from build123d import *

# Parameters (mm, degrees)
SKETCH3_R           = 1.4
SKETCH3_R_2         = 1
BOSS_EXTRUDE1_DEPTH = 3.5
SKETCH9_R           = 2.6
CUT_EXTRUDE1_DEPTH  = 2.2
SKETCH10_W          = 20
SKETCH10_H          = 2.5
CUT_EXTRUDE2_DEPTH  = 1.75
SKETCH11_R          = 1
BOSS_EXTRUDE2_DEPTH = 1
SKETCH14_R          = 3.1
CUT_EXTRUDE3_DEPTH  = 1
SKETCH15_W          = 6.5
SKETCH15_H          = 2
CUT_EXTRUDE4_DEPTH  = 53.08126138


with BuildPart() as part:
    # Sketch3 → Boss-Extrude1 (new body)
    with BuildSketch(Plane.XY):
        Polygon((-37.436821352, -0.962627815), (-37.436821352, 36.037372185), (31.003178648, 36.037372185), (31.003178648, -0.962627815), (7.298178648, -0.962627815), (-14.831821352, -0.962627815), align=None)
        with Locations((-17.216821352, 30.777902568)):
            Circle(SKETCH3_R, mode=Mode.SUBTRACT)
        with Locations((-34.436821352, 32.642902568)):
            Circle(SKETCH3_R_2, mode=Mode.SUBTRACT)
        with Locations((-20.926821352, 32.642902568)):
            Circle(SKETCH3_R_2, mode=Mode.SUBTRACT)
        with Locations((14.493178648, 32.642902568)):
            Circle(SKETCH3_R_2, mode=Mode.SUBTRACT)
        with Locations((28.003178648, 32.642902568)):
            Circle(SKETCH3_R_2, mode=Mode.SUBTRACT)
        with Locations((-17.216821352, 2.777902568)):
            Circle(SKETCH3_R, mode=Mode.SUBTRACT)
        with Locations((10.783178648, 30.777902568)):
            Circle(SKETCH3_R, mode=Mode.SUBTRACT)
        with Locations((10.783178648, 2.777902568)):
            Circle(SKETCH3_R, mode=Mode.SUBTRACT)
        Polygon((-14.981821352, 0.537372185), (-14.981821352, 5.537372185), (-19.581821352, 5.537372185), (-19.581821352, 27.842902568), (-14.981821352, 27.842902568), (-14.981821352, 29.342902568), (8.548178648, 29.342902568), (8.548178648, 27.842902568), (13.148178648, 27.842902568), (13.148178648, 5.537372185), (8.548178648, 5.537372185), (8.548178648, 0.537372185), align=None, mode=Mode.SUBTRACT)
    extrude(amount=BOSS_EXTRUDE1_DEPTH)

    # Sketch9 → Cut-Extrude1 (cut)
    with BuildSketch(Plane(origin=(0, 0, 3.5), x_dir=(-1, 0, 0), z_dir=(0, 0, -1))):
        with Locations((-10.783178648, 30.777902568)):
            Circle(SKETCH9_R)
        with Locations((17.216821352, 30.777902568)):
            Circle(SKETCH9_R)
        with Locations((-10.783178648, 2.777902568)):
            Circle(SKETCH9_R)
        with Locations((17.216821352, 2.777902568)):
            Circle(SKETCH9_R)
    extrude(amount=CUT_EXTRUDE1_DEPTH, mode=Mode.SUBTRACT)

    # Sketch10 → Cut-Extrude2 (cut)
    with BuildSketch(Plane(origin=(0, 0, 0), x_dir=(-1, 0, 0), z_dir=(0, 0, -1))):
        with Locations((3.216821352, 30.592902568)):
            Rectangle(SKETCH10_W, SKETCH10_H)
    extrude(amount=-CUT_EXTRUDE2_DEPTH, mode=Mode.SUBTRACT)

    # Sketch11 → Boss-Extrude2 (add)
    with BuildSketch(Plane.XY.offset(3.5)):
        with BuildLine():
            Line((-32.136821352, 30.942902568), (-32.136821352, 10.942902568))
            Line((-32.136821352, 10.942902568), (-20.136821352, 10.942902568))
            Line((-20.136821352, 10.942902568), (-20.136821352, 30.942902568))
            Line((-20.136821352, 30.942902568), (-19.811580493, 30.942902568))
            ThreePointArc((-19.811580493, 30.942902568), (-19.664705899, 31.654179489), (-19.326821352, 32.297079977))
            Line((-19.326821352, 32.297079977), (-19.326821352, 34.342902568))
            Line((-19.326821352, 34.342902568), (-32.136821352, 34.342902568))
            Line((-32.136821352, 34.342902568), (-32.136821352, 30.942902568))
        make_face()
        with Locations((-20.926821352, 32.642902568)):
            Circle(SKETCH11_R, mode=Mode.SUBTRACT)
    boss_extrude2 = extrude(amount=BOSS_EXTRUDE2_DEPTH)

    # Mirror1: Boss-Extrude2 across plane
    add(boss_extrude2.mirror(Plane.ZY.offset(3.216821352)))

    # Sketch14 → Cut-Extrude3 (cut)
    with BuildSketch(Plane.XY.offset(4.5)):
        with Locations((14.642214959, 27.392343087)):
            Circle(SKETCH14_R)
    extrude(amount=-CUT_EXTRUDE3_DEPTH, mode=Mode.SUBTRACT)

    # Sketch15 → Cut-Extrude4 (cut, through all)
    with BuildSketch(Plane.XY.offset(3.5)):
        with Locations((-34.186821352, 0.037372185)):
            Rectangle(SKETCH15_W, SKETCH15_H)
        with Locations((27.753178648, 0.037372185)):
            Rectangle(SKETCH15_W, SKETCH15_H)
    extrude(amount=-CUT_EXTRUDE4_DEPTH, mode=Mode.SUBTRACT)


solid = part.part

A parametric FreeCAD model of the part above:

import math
import FreeCAD as App
import Part
import Sketcher
from FreeCAD import Vector
Q = App.Units.Quantity

doc = App.newDocument("Part")
body = doc.addObject("PartDesign::Body", "Body")

# Sketch on XY plane
sketch1 = body.newObject("Sketcher::SketchObject", "Sketch")
sketch1.AttachmentSupport = (doc.getObject("XY_Plane"), [""])
sketch1.MapMode = "FlatFace"
sketch1.addGeometry([
    Part.LineSegment(Vector(-37.4, 36, 0), Vector(-37.4, -1, 0)),  # 0
    Part.LineSegment(Vector(-37.4, -1, 0), Vector(31, -1, 0)),  # 1
    Part.LineSegment(Vector(31, -1, 0), Vector(31, 36, 0)),  # 2
    Part.LineSegment(Vector(31, 36, 0), Vector(-37.4, 36, 0)),  # 3
    Part.Circle(Vector(10.8, 2.8, 0), Vector(0, 0, 1), 1.4),  # 4
    Part.LineSegment(Vector(-15, 0.5, 0), Vector(-15, 5.5, 0)),  # 5
    Part.LineSegment(Vector(-15, 5.5, 0), Vector(-19.6, 5.5, 0)),  # 6
    Part.LineSegment(Vector(-19.6, 5.5, 0), Vector(-19.6, 27.8, 0)),  # 7
    Part.LineSegment(Vector(-19.6, 27.8, 0), Vector(-15, 27.8, 0)),  # 8
    Part.LineSegment(Vector(-15, 27.8, 0), Vector(-15, 29.3, 0)),  # 9
    Part.LineSegment(Vector(-15, 29.3, 0), Vector(8.5, 29.3, 0)),  # 10
    Part.LineSegment(Vector(8.5, 29.3, 0), Vector(8.5, 27.8, 0)),  # 11
    Part.LineSegment(Vector(8.5, 27.8, 0), Vector(13.1, 27.8, 0)),  # 12
    Part.LineSegment(Vector(13.1, 27.8, 0), Vector(13.1, 5.5, 0)),  # 13
    Part.LineSegment(Vector(13.1, 5.5, 0), Vector(8.5, 5.5, 0)),  # 14
    Part.LineSegment(Vector(8.5, 5.5, 0), Vector(8.5, 0.5, 0)),  # 15
    Part.LineSegment(Vector(8.5, 0.5, 0), Vector(-15, 0.5, 0)),  # 16
    Part.Circle(Vector(-17.2, 2.8, 0), Vector(0, 0, 1), 1.4),  # 17
    Part.Circle(Vector(28, 32.6, 0), Vector(0, 0, 1), 1),  # 18
    Part.Circle(Vector(14.5, 32.6, 0), Vector(0, 0, 1), 1),  # 19
    Part.Circle(Vector(10.8, 30.8, 0), Vector(0, 0, 1), 1.4),  # 20
    Part.Circle(Vector(-17.2, 30.8, 0), Vector(0, 0, 1), 1.4),  # 21
    Part.Circle(Vector(-20.9, 32.6, 0), Vector(0, 0, 1), 1),  # 22
    Part.Circle(Vector(-34.4, 32.6, 0), Vector(0, 0, 1), 1),  # 23
], False)
sketch1.addConstraint([
    Sketcher.Constraint("Coincident", 0, 2, 1, 1),
    Sketcher.Constraint("Coincident", 1, 2, 2, 1),
    Sketcher.Constraint("Coincident", 2, 2, 3, 1),
    Sketcher.Constraint("Coincident", 3, 2, 0, 1),
    Sketcher.Constraint("Coincident", 5, 2, 6, 1),
    Sketcher.Constraint("Coincident", 6, 2, 7, 1),
    Sketcher.Constraint("Coincident", 7, 2, 8, 1),
    Sketcher.Constraint("Coincident", 8, 2, 9, 1),
    Sketcher.Constraint("Coincident", 9, 2, 10, 1),
    Sketcher.Constraint("Coincident", 10, 2, 11, 1),
    Sketcher.Constraint("Coincident", 11, 2, 12, 1),
    Sketcher.Constraint("Coincident", 12, 2, 13, 1),
    Sketcher.Constraint("Coincident", 13, 2, 14, 1),
    Sketcher.Constraint("Coincident", 14, 2, 15, 1),
    Sketcher.Constraint("Coincident", 15, 2, 16, 1),
    Sketcher.Constraint("Coincident", 16, 2, 5, 1),
    Sketcher.Constraint("Vertical", 0),
    Sketcher.Constraint("Horizontal", 1),
    Sketcher.Constraint("Vertical", 2),
    Sketcher.Constraint("Horizontal", 3),
    Sketcher.Constraint("Vertical", 5),
    Sketcher.Constraint("Horizontal", 6),
    Sketcher.Constraint("Vertical", 7),
    Sketcher.Constraint("Horizontal", 8),
    Sketcher.Constraint("Vertical", 9),
    Sketcher.Constraint("Horizontal", 10),
    Sketcher.Constraint("Vertical", 11),
    Sketcher.Constraint("Horizontal", 12),
    Sketcher.Constraint("Vertical", 13),
    Sketcher.Constraint("Horizontal", 14),
    Sketcher.Constraint("Vertical", 15),
    Sketcher.Constraint("Horizontal", 16),
    Sketcher.Constraint("Equal", 4, 17),
    Sketcher.Constraint("Equal", 18, 19),
    Sketcher.Constraint("Equal", 17, 20),
    Sketcher.Constraint("Equal", 20, 21),
    Sketcher.Constraint("Equal", 19, 22),
    Sketcher.Constraint("Equal", 22, 23),
    Sketcher.Constraint("Horizontal", 4, 3, 17, 3),
    Sketcher.Constraint("Horizontal", 18, 3, 19, 3),
    Sketcher.Constraint("Horizontal", 20, 3, 21, 3),
    Sketcher.Constraint("Horizontal", 19, 3, 22, 3),
    Sketcher.Constraint("Horizontal", 22, 3, 23, 3),
    Sketcher.Constraint("Horizontal", 8, 2, 11, 2),
    Sketcher.Constraint("Horizontal", 6, 2, 13, 2),
    Sketcher.Constraint("Vertical", 4, 3, 20, 3),
    Sketcher.Constraint("Vertical", 17, 3, 21, 3),
    Sketcher.Constraint("Vertical", 5, 2, 8, 2),
    Sketcher.Constraint("Vertical", 11, 2, 14, 2),
    Sketcher.Constraint("Equal", 8, 12),
    Sketcher.Constraint("Diameter", 18, Q("2 mm")),
    Sketcher.Constraint("Diameter", 4, Q("2.8 mm")),
    Sketcher.Constraint("DistanceY", 0, 2, 0, 1, Q("37 mm")),
    Sketcher.Constraint("DistanceY", 5, 1, 5, 2, Q("5 mm")),
    Sketcher.Constraint("DistanceX", 6, 2, 6, 1, Q("4.6 mm")),
    Sketcher.Constraint("DistanceY", 9, 1, 9, 2, Q("1.5 mm")),
    Sketcher.Constraint("DistanceX", 17, 3, 4, 3, Q("28 mm")),
    Sketcher.Constraint("DistanceY", 4, 3, 20, 3, Q("28 mm")),
    Sketcher.Constraint("DistanceX", 0, 2, 23, 3, Q("3 mm")),
    Sketcher.Constraint("DistanceX", 18, 3, 1, 2, Q("3 mm")),
    Sketcher.Constraint("DistanceX", 1, 1, 1, 2, Q("68.44 mm")),
    Sketcher.Constraint("DistanceX", 10, 1, 10, 2, Q("23.53 mm")),
    Sketcher.Constraint("DistanceY", 0, 2, 5, 2, Q("6.5 mm")),
    Sketcher.Constraint("DistanceY", 7, 2, 22, 3, Q("4.8 mm")),
    Sketcher.Constraint("DistanceX", 4, 3, 18, 3, Q("17.22 mm")),
    Sketcher.Constraint("DistanceX", 19, 3, 18, 3, Q("13.51 mm")),
    Sketcher.Constraint("DistanceX", 22, 3, 21, 3, Q("3.71 mm")),
    Sketcher.Constraint("DistanceY", 4, 3, 18, 3, Q("29.865 mm")),
    Sketcher.Constraint("DistanceX", 17, 3, 5, 2, Q("2.235 mm")),
    Sketcher.Constraint("DistanceY", 7, 1, 7, 2, Q("22.30553 mm")),
    Sketcher.Constraint("DistanceX", -1, 1, 4, 3, Q("10.783179 mm")),
    Sketcher.Constraint("DistanceY", -1, 1, 4, 3, Q("2.777903 mm")),
])
pad1 = body.newObject("PartDesign::Pad", "Pad")
pad1.Profile = sketch1
pad1.Length = 3.5

# Sketch on XY plane
sketch2 = body.newObject("Sketcher::SketchObject", "Sketch001")
sketch2.AttachmentSupport = (doc.getObject("XY_Plane"), [""])
sketch2.MapMode = "FlatFace"
sketch2.AttachmentOffset = App.Placement(Vector(0, 0, 3.5), App.Rotation())
sketch2.addGeometry([
    Part.Circle(Vector(10.8, 30.8, 0), Vector(0, 0, 1), 2.6),
    Part.Circle(Vector(-17.2, 30.8, 0), Vector(0, 0, 1), 2.6),
    Part.Circle(Vector(10.8, 2.8, 0), Vector(0, 0, 1), 2.6),
    Part.Circle(Vector(-17.2, 2.8, 0), Vector(0, 0, 1), 2.6),
], False)
sketch2.addConstraint([
    Sketcher.Constraint("Equal", 0, 1),
    Sketcher.Constraint("Equal", 1, 2),
    Sketcher.Constraint("Equal", 2, 3),
    Sketcher.Constraint("Horizontal", 0, 3, 1, 3),
    Sketcher.Constraint("Horizontal", 2, 3, 3, 3),
    Sketcher.Constraint("Vertical", 0, 3, 2, 3),
    Sketcher.Constraint("Vertical", 1, 3, 3, 3),
    Sketcher.Constraint("Diameter", 0, Q("5.2 mm")),
    Sketcher.Constraint("DistanceX", 1, 3, 0, 3, Q("28 mm")),
    Sketcher.Constraint("DistanceY", 2, 3, 0, 3, Q("28 mm")),
    Sketcher.Constraint("DistanceX", -1, 1, 0, 3, Q("10.783179 mm")),
    Sketcher.Constraint("DistanceY", -1, 1, 0, 3, Q("30.777903 mm")),
])
pocket1 = body.newObject("PartDesign::Pocket", "Pocket")
pocket1.Profile = sketch2
pocket1.Length = 2.2

# Sketch on XY plane
sketch3 = body.newObject("Sketcher::SketchObject", "Sketch002")
sketch3.AttachmentSupport = (doc.getObject("XY_Plane"), [""])
sketch3.MapMode = "FlatFace"
sketch3.addGeometry([
    Part.LineSegment(Vector(6.8, 31.8, 0), Vector(6.8, 29.3, 0)),
    Part.LineSegment(Vector(6.8, 29.3, 0), Vector(-13.2, 29.3, 0)),
    Part.LineSegment(Vector(-13.2, 29.3, 0), Vector(-13.2, 31.8, 0)),
    Part.LineSegment(Vector(-13.2, 31.8, 0), Vector(6.8, 31.8, 0)),
], False)
sketch3.addConstraint([
    Sketcher.Constraint("Coincident", 0, 2, 1, 1),
    Sketcher.Constraint("Coincident", 1, 2, 2, 1),
    Sketcher.Constraint("Coincident", 2, 2, 3, 1),
    Sketcher.Constraint("Coincident", 3, 2, 0, 1),
    Sketcher.Constraint("Vertical", 0),
    Sketcher.Constraint("Horizontal", 1),
    Sketcher.Constraint("Vertical", 2),
    Sketcher.Constraint("Horizontal", 3),
    Sketcher.Constraint("DistanceX", 1, 2, 1, 1, Q("20 mm")),
    Sketcher.Constraint("DistanceY", 0, 2, 0, 1, Q("2.5 mm")),
    Sketcher.Constraint("DistanceX", -1, 1, 0, 2, Q("6.783179 mm")),
    Sketcher.Constraint("DistanceY", -1, 1, 0, 2, Q("29.342903 mm")),
])
pocket2 = body.newObject("PartDesign::Pocket", "Pocket001")
pocket2.Profile = sketch3
pocket2.Length = 1.75
pocket2.Reversed = True

# Sketch on XY plane
sketch4 = body.newObject("Sketcher::SketchObject", "Sketch003")
sketch4.AttachmentSupport = (doc.getObject("XY_Plane"), [""])
sketch4.MapMode = "FlatFace"
sketch4.AttachmentOffset = App.Placement(Vector(0, 0, 3.5), App.Rotation())
sketch4.addGeometry([
    Part.LineSegment(Vector(-32.14, 10.94, 0), Vector(-20.14, 10.94, 0)),  # 0
    Part.LineSegment(Vector(-20.14, 10.94, 0), Vector(-20.14, 30.94, 0)),  # 1
    Part.LineSegment(Vector(-20.14, 30.94, 0), Vector(-19.81, 30.94, 0)),  # 2
    Part.ArcOfCircle(Part.Circle(Vector(-17.22, 30.78, 0), Vector(0, 0, 1), 2.6), math.radians(144), math.radians(176)),  # 3
    Part.LineSegment(Vector(-19.33, 32.3, 0), Vector(-19.33, 34.34, 0)),  # 4
    Part.LineSegment(Vector(-19.33, 34.34, 0), Vector(-32.14, 34.34, 0)),  # 5
    Part.LineSegment(Vector(-32.14, 34.34, 0), Vector(-32.14, 10.94, 0)),  # 6
    Part.Circle(Vector(-20.93, 32.64, 0), Vector(0, 0, 1), 1),  # 7
], False)
sketch4.addConstraint([
    Sketcher.Constraint("Coincident", 0, 2, 1, 1),
    Sketcher.Constraint("Coincident", 1, 2, 2, 1),
    Sketcher.Constraint("Coincident", 2, 2, 3, 2),
    Sketcher.Constraint("Coincident", 3, 1, 4, 1),
    Sketcher.Constraint("Coincident", 4, 2, 5, 1),
    Sketcher.Constraint("Coincident", 5, 2, 6, 1),
    Sketcher.Constraint("Coincident", 6, 2, 0, 1),
    Sketcher.Constraint("Horizontal", 0),
    Sketcher.Constraint("Vertical", 1),
    Sketcher.Constraint("Horizontal", 2),
    Sketcher.Constraint("Vertical", 4),
    Sketcher.Constraint("Horizontal", 5),
    Sketcher.Constraint("Vertical", 6),
    Sketcher.Constraint("Diameter", 7, Q("2 mm")),
    Sketcher.Constraint("Radius", 3, Q("2.6 mm")),
    Sketcher.Constraint("DistanceX", 0, 1, 0, 2, Q("12 mm")),
    Sketcher.Constraint("DistanceY", 1, 1, 1, 2, Q("20 mm")),
    Sketcher.Constraint("DistanceY", 6, 2, 6, 1, Q("23.4 mm")),
    Sketcher.Constraint("DistanceX", 5, 2, 5, 1, Q("12.81 mm")),
    Sketcher.Constraint("DistanceY", 0, 2, 7, 3, Q("21.7 mm")),
    Sketcher.Constraint("DistanceX", 7, 3, 3, 1, Q("1.6 mm")),
    Sketcher.Constraint("DistanceX", 7, 3, 3, 3, Q("3.71 mm")),
    Sketcher.Constraint("DistanceY", 3, 3, 7, 3, Q("1.865 mm")),
    Sketcher.Constraint("DistanceX", 3, 3, -1, 1, Q("17.216821 mm")),
    Sketcher.Constraint("DistanceY", -1, 1, 3, 1, Q("32.29708 mm")),
])
pad2 = body.newObject("PartDesign::Pad", "Pad001")
pad2.Profile = sketch4
pad2.Length = 1
doc.recompute()

datumplane = body.newObject("PartDesign::Plane", "DatumPlane")
datumplane.AttachmentSupport = (doc.getObject("YZ_Plane"), [""])
datumplane.MapMode = "FlatFace"
datumplane.AttachmentOffset = App.Placement(Vector(0, 0, -3.216821), App.Rotation())
mirrored = body.newObject("PartDesign::Mirrored", "Mirrored")
mirrored.Originals = [pad2]
mirrored.MirrorPlane = (datumplane, [""])
body.Tip = mirrored

# Sketch on XY plane
sketch5 = body.newObject("Sketcher::SketchObject", "Sketch004")
sketch5.AttachmentSupport = (doc.getObject("XY_Plane"), [""])
sketch5.MapMode = "FlatFace"
sketch5.AttachmentOffset = App.Placement(Vector(0, 0, 4.5), App.Rotation())
sketch5.addGeometry(Part.Circle(Vector(14.6, 27.4, 0), Vector(0, 0, 1), 3.1), False)
sketch5.addConstraint([
    Sketcher.Constraint("Diameter", 0, Q("6.2 mm")),
    Sketcher.Constraint("DistanceX", -1, 1, 0, 3, Q("14.642215 mm")),
    Sketcher.Constraint("DistanceY", -1, 1, 0, 3, Q("27.392343 mm")),
])
pocket3 = body.newObject("PartDesign::Pocket", "Pocket002")
pocket3.Profile = sketch5
pocket3.Length = 1

# Sketch on XY plane
sketch6 = body.newObject("Sketcher::SketchObject", "Sketch005")
sketch6.AttachmentSupport = (doc.getObject("XY_Plane"), [""])
sketch6.MapMode = "FlatFace"
sketch6.AttachmentOffset = App.Placement(Vector(0, 0, 3.5), App.Rotation())
sketch6.addGeometry([
    Part.LineSegment(Vector(-37.4, 1, 0), Vector(-37.4, -1, 0)),  # 0
    Part.LineSegment(Vector(-37.4, -1, 0), Vector(-30.9, -1, 0)),  # 1
    Part.LineSegment(Vector(-30.9, -1, 0), Vector(-30.9, 1, 0)),  # 2
    Part.LineSegment(Vector(-30.9, 1, 0), Vector(-37.4, 1, 0)),  # 3
    Part.LineSegment(Vector(24.5, 1, 0), Vector(24.5, -1, 0)),  # 4
    Part.LineSegment(Vector(24.5, -1, 0), Vector(31, -1, 0)),  # 5
    Part.LineSegment(Vector(31, -1, 0), Vector(31, 1, 0)),  # 6
    Part.LineSegment(Vector(31, 1, 0), Vector(24.5, 1, 0)),  # 7
], False)
sketch6.addConstraint([
    Sketcher.Constraint("Coincident", 0, 2, 1, 1),
    Sketcher.Constraint("Coincident", 1, 2, 2, 1),
    Sketcher.Constraint("Coincident", 2, 2, 3, 1),
    Sketcher.Constraint("Coincident", 3, 2, 0, 1),
    Sketcher.Constraint("Coincident", 4, 2, 5, 1),
    Sketcher.Constraint("Coincident", 5, 2, 6, 1),
    Sketcher.Constraint("Coincident", 6, 2, 7, 1),
    Sketcher.Constraint("Coincident", 7, 2, 4, 1),
    Sketcher.Constraint("Vertical", 0),
    Sketcher.Constraint("Horizontal", 1),
    Sketcher.Constraint("Vertical", 2),
    Sketcher.Constraint("Horizontal", 3),
    Sketcher.Constraint("Vertical", 4),
    Sketcher.Constraint("Horizontal", 5),
    Sketcher.Constraint("Vertical", 6),
    Sketcher.Constraint("Horizontal", 7),
    Sketcher.Constraint("Horizontal", 1, 2, 4, 2),
    Sketcher.Constraint("Horizontal", 3, 2, 6, 2),
    Sketcher.Constraint("Equal", 3, 5),
    Sketcher.Constraint("DistanceY", 0, 2, 0, 1, Q("2 mm")),
    Sketcher.Constraint("DistanceX", 1, 1, 1, 2, Q("6.5 mm")),
    Sketcher.Constraint("DistanceX", 1, 2, 4, 2, Q("55.44 mm")),
    Sketcher.Constraint("DistanceX", 0, 2, -1, 1, Q("37.436821 mm")),
    Sketcher.Constraint("DistanceY", 0, 2, -1, 1, Q("0.962628 mm")),
])
pocket4 = body.newObject("PartDesign::Pocket", "Pocket003")
pocket4.Profile = sketch6
pocket4.Type = "ThroughAll"

doc.recompute()
